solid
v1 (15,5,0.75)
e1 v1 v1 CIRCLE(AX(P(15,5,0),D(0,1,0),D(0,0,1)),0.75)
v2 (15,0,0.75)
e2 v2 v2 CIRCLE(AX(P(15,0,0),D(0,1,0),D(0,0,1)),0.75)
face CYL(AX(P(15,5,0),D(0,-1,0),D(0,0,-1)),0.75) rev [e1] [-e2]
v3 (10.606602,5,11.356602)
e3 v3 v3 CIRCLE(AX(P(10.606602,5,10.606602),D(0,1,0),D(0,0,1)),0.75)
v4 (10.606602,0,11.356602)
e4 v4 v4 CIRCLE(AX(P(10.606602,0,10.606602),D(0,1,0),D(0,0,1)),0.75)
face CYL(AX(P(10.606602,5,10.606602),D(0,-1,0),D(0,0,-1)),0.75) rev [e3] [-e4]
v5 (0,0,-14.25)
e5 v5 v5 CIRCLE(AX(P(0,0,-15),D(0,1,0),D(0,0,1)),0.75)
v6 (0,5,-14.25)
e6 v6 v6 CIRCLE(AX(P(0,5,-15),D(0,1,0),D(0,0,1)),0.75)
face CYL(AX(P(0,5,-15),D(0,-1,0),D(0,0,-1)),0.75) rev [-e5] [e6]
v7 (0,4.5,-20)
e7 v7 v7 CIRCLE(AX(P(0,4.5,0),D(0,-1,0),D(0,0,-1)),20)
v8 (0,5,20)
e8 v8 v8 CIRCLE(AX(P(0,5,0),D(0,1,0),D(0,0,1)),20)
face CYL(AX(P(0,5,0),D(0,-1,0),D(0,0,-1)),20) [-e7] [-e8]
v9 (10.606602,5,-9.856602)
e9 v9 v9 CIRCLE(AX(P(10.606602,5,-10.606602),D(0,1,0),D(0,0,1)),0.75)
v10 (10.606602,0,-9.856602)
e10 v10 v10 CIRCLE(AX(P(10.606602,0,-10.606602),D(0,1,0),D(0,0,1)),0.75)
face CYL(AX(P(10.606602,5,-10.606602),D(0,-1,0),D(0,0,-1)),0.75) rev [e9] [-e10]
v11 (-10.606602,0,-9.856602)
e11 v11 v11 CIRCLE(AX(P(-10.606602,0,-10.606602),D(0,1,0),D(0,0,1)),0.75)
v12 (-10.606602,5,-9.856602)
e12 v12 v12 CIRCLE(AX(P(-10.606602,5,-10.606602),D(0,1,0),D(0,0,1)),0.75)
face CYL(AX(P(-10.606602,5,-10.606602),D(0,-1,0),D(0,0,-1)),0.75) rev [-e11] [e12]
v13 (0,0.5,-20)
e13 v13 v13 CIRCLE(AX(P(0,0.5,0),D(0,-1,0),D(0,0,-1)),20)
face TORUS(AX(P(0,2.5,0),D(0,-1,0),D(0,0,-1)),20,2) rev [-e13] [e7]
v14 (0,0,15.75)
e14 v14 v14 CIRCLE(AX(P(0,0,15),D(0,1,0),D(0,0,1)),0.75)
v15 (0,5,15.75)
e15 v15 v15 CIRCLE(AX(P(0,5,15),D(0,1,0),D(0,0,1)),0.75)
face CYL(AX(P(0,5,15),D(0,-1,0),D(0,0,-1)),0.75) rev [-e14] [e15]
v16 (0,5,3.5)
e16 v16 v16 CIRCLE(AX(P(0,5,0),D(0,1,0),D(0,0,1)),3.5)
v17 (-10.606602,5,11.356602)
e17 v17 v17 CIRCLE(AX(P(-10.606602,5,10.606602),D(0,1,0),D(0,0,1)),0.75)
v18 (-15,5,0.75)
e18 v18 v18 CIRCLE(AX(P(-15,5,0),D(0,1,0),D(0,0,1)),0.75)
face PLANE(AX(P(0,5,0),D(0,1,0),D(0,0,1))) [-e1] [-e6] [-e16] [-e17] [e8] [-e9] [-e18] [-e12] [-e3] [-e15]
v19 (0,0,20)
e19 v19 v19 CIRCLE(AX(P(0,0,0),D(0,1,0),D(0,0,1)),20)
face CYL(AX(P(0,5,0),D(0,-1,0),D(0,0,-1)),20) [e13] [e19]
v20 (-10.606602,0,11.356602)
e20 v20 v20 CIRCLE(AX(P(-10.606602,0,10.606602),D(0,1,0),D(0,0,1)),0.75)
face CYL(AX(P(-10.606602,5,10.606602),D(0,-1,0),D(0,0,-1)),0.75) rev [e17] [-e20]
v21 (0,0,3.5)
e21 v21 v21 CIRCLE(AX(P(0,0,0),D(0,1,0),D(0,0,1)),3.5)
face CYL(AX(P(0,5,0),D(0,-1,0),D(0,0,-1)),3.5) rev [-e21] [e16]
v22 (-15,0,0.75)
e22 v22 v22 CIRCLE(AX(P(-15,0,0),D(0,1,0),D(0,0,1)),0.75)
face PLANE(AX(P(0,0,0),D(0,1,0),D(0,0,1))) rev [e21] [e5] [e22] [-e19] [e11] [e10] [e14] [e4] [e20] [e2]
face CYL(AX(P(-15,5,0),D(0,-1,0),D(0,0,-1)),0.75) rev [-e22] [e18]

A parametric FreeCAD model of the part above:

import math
import FreeCAD as App
import Part
import Sketcher

doc = App.newDocument("Part")
body = doc.addObject("PartDesign::Body", "Body")

sketch1 = doc.addObject("Sketcher::SketchObject", "Sketch")
body.addObject(sketch1)
sketch1.AttachmentSupport = (doc.XZ_Plane, [""])
sketch1.MapMode = "FlatFace"
sketch1.addGeometry(Part.Circle(App.Vector(0, 0, 0), App.Vector(0, 0, 1), 20), False)
sketch1.addGeometry(Part.Circle(App.Vector(0, 0, 0), App.Vector(0, 0, 1), 3.5), False)
sketch1.addConstraint(Sketcher.Constraint("Coincident", 0, 3, -1, 1))
sketch1.addConstraint(Sketcher.Constraint("Coincident", 1, 3, -1, 1))
sketch1.addConstraint(Sketcher.Constraint("Diameter", 0, 40.0))
sketch1.addConstraint(Sketcher.Constraint("Diameter", 1, 7.0))
pad1 = doc.addObject("PartDesign::Pad", "Pad")
body.addObject(pad1)
pad1.Profile = sketch1
pad1.Length = 5
pad1.Reversed = True

sketch2 = doc.addObject("Sketcher::SketchObject", "Sketch001")
body.addObject(sketch2)
sketch2.AttachmentSupport = (doc.XY_Plane, [""])
sketch2.MapMode = "FlatFace"
sketch2.addGeometry(Part.LineSegment(App.Vector(-20, 4.5, 0), App.Vector(-20, 0.5, 0)), False)
sketch2.addGeometry(Part.ArcOfCircle(Part.Circle(App.Vector(-20, 2.5, 0), App.Vector(0, 0, 1), 2), math.radians(-90), math.radians(90)), False)
sketch2.addConstraint(Sketcher.Constraint("Coincident", 0, 1, 1, 2))
sketch2.addConstraint(Sketcher.Constraint("Coincident", 1, 1, 0, 2))
sketch2.addConstraint(Sketcher.Constraint("Vertical", 0))
sketch2.addConstraint(Sketcher.Constraint("Vertical", 1, 3, 0, 1))
sketch2.addConstraint(Sketcher.Constraint("Radius", 1, 2.0))
sketch2.addConstraint(Sketcher.Constraint("DistanceX", 1, 3, -1, 1, 20.0))
sketch2.addConstraint(Sketcher.Constraint("DistanceY", -1, 1, 1, 3, 2.5))
groove = doc.addObject("PartDesign::Groove", "Groove")
body.addObject(groove)
groove.Profile = sketch2
groove.ReferenceAxis = (sketch2, ["V_Axis"])
groove.Angle = 360

sketch3 = doc.addObject("Sketcher::SketchObject", "Sketch002")
body.addObject(sketch3)
sketch3.AttachmentSupport = (doc.XZ_Plane, [""])
sketch3.MapMode = "FlatFace"
sketch3.addGeometry(Part.Circle(App.Vector(0, 15, 0), App.Vector(0, 0, 1), 0.8), False)
sketch3.addGeometry(Part.Circle(App.Vector(-10.6, 10.6, 0), App.Vector(0, 0, 1), 0.8), False)
sketch3.addGeometry(Part.Circle(App.Vector(-15, 0, 0), App.Vector(0, 0, 1), 0.8), False)
sketch3.addGeometry(Part.Circle(App.Vector(-10.6, -10.6, 0), App.Vector(0, 0, 1), 0.8), False)
sketch3.addGeometry(Part.Circle(App.Vector(0, -15, 0), App.Vector(0, 0, 1), 0.8), False)
sketch3.addGeometry(Part.Circle(App.Vector(10.6, -10.6, 0), App.Vector(0, 0, 1), 0.8), False)
sketch3.addGeometry(Part.Circle(App.Vector(15, 0, 0), App.Vector(0, 0, 1), 0.8), False)
sketch3.addGeometry(Part.Circle(App.Vector(10.6, 10.6, 0), App.Vector(0, 0, 1), 0.8), False)
sketch3.addConstraint(Sketcher.Constraint("Equal", 0, 1))
sketch3.addConstraint(Sketcher.Constraint("Equal", 1, 2))
sketch3.addConstraint(Sketcher.Constraint("Equal", 2, 3))
sketch3.addConstraint(Sketcher.Constraint("Equal", 3, 4))
sketch3.addConstraint(Sketcher.Constraint("Equal", 4, 5))
sketch3.addConstraint(Sketcher.Constraint("Equal", 5, 6))
sketch3.addConstraint(Sketcher.Constraint("Equal", 6, 7))
sketch3.addConstraint(Sketcher.Constraint("Symmetric", 0, 3, 4, 3, -1, 1))
sketch3.addConstraint(Sketcher.Constraint("Symmetric", 1, 3, 5, 3, -1, 1))
sketch3.addConstraint(Sketcher.Constraint("Symmetric", 2, 3, 6, 3, -1, 1))
sketch3.addConstraint(Sketcher.Constraint("Symmetric", 3, 3, 7, 3, -1, 1))
sketch3.addConstraint(Sketcher.Constraint("Symmetric", 3, 3, 5, 3, -2))
sketch3.addConstraint(Sketcher.Constraint("PointOnObject", 0, 3, -2))
sketch3.addConstraint(Sketcher.Constraint("PointOnObject", 2, 3, -1))
sketch3.addConstraint(Sketcher.Constraint("Diameter", 0, 1.5))
sketch3.addConstraint(Sketcher.Constraint("DistanceY", -1, 1, 0, 3, 15.0))
sketch3.addConstraint(Sketcher.Constraint("DistanceX", 2, 3, -1, 1, 15.0))
sketch3.addConstraint(Sketcher.Constraint("DistanceX", 1, 3, -1, 1, 10.606602))
sketch3.addConstraint(Sketcher.Constraint("DistanceY", -1, 1, 1, 3, 10.606602))
pocket1 = doc.addObject("PartDesign::Pocket", "Pocket")
body.addObject(pocket1)
pocket1.Profile = sketch3
pocket1.Type = "ThroughAll"

doc.recompute()
